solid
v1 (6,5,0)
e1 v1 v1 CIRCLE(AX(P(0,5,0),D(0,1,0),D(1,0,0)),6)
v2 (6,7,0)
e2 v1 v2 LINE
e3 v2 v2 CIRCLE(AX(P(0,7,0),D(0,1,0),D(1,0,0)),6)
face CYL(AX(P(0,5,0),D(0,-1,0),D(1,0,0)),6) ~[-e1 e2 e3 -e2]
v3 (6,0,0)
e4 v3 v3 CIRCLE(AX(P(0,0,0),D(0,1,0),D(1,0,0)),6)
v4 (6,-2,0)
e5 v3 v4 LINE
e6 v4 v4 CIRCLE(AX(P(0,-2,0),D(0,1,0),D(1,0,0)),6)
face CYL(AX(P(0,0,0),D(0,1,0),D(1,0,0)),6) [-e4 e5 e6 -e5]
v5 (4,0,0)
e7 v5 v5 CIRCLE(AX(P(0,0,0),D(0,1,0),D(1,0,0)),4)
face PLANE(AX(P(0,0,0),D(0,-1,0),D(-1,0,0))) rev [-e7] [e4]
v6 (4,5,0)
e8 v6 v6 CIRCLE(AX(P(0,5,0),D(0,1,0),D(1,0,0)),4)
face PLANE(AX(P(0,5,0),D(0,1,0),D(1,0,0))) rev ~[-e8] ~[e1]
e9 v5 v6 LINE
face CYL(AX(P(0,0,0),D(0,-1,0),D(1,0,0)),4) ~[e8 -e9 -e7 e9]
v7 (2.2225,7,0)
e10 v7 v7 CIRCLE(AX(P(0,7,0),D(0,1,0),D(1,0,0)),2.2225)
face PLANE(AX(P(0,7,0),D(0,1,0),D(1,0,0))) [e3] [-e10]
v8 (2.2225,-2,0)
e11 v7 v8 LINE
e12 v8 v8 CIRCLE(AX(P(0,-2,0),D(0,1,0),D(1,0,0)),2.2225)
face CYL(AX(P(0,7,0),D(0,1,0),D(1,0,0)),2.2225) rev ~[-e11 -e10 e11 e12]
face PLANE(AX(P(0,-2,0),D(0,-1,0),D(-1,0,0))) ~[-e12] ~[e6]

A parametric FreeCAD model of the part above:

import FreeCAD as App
import Part
import Sketcher
from FreeCAD import Vector

doc = App.newDocument("Part")
params = doc.addObject("Spreadsheet::Sheet", "Params")
for row, (alias, value) in enumerate([
    ("sketch1_diameter", "8 mm"),
    ("pad1_length", "5 mm"),
    ("sketch2_diameter", "12 mm"),
    ("pad2_length", "2 mm"),
], start=1):
    params.set(f"A{row}", alias)
    params.set(f"B{row}", "=" + value)
    params.setAlias(f"B{row}", alias)

body = doc.addObject("PartDesign::Body", "Body")

# Sketch on XZ plane
sketch1 = body.newObject("Sketcher::SketchObject", "Sketch")
sketch1.AttachmentSupport = (doc.getObject("XZ_Plane"), [""])
sketch1.MapMode = "FlatFace"
sketch1.addGeometry(Part.Circle(Vector(0, 0, 0), Vector(0, 0, 1), 4), False)
sketch1.addConstraint([
    Sketcher.Constraint("Coincident", 0, 3, -1, 1),
    Sketcher.Constraint("Diameter", 0, 8.0),
])
sketch1.setExpression("Constraints[1]", "Params.sketch1_diameter")
pad1 = body.newObject("PartDesign::Pad", "Pad")
pad1.Profile = sketch1
pad1.setExpression("Length", "Params.pad1_length")
pad1.Reversed = True

# Sketch on XZ plane
sketch2 = body.newObject("Sketcher::SketchObject", "Sketch001")
sketch2.AttachmentSupport = (doc.getObject("XZ_Plane"), [""])
sketch2.MapMode = "FlatFace"
sketch2.AttachmentOffset = App.Placement(Vector(0, 0, -5), App.Rotation())
sketch2.addGeometry(Part.Circle(Vector(0, 0, 0), Vector(0, 0, 1), 6), False)
sketch2.addConstraint([
    Sketcher.Constraint("Coincident", 0, 3, -1, 1),
    Sketcher.Constraint("Diameter", 0, 12.0),
])
sketch2.setExpression("Constraints[1]", "Params.sketch2_diameter")
pad2 = body.newObject("PartDesign::Pad", "Pad001")
pad2.Profile = sketch2
pad2.setExpression("Length", "Params.pad2_length")
pad2.Reversed = True
doc.recompute()

datumplane = body.newObject("PartDesign::Plane", "DatumPlane")
datumplane.AttachmentSupport = (doc.getObject("XZ_Plane"), [""])
datumplane.MapMode = "FlatFace"
datumplane.AttachmentOffset = App.Placement(Vector(0, 0, -2.5), App.Rotation())
mirrored = body.newObject("PartDesign::Mirrored", "Mirrored")
mirrored.Originals = [pad2]
mirrored.MirrorPlane = (datumplane, [""])
body.Tip = mirrored

# Sketch on XZ plane
sketch3 = body.newObject("Sketcher::SketchObject", "Sketch002")
sketch3.AttachmentSupport = (doc.getObject("XZ_Plane"), [""])
sketch3.MapMode = "FlatFace"
sketch3.AttachmentOffset = App.Placement(Vector(0, 0, -7), App.Rotation())
sketch3.addGeometry(Part.Circle(Vector(0, 0, 0), Vector(0, 0, 1), 2.2), False)
sketch3.addConstraint([
    Sketcher.Constraint("Coincident", 0, 3, -1, 1),
    Sketcher.Constraint("Diameter", 0, 4.445),
])
pocket1 = body.newObject("PartDesign::Pocket", "Pocket")
pocket1.Profile = sketch3
pocket1.Type = "ThroughAll"
pocket1.Reversed = True

doc.recompute()
